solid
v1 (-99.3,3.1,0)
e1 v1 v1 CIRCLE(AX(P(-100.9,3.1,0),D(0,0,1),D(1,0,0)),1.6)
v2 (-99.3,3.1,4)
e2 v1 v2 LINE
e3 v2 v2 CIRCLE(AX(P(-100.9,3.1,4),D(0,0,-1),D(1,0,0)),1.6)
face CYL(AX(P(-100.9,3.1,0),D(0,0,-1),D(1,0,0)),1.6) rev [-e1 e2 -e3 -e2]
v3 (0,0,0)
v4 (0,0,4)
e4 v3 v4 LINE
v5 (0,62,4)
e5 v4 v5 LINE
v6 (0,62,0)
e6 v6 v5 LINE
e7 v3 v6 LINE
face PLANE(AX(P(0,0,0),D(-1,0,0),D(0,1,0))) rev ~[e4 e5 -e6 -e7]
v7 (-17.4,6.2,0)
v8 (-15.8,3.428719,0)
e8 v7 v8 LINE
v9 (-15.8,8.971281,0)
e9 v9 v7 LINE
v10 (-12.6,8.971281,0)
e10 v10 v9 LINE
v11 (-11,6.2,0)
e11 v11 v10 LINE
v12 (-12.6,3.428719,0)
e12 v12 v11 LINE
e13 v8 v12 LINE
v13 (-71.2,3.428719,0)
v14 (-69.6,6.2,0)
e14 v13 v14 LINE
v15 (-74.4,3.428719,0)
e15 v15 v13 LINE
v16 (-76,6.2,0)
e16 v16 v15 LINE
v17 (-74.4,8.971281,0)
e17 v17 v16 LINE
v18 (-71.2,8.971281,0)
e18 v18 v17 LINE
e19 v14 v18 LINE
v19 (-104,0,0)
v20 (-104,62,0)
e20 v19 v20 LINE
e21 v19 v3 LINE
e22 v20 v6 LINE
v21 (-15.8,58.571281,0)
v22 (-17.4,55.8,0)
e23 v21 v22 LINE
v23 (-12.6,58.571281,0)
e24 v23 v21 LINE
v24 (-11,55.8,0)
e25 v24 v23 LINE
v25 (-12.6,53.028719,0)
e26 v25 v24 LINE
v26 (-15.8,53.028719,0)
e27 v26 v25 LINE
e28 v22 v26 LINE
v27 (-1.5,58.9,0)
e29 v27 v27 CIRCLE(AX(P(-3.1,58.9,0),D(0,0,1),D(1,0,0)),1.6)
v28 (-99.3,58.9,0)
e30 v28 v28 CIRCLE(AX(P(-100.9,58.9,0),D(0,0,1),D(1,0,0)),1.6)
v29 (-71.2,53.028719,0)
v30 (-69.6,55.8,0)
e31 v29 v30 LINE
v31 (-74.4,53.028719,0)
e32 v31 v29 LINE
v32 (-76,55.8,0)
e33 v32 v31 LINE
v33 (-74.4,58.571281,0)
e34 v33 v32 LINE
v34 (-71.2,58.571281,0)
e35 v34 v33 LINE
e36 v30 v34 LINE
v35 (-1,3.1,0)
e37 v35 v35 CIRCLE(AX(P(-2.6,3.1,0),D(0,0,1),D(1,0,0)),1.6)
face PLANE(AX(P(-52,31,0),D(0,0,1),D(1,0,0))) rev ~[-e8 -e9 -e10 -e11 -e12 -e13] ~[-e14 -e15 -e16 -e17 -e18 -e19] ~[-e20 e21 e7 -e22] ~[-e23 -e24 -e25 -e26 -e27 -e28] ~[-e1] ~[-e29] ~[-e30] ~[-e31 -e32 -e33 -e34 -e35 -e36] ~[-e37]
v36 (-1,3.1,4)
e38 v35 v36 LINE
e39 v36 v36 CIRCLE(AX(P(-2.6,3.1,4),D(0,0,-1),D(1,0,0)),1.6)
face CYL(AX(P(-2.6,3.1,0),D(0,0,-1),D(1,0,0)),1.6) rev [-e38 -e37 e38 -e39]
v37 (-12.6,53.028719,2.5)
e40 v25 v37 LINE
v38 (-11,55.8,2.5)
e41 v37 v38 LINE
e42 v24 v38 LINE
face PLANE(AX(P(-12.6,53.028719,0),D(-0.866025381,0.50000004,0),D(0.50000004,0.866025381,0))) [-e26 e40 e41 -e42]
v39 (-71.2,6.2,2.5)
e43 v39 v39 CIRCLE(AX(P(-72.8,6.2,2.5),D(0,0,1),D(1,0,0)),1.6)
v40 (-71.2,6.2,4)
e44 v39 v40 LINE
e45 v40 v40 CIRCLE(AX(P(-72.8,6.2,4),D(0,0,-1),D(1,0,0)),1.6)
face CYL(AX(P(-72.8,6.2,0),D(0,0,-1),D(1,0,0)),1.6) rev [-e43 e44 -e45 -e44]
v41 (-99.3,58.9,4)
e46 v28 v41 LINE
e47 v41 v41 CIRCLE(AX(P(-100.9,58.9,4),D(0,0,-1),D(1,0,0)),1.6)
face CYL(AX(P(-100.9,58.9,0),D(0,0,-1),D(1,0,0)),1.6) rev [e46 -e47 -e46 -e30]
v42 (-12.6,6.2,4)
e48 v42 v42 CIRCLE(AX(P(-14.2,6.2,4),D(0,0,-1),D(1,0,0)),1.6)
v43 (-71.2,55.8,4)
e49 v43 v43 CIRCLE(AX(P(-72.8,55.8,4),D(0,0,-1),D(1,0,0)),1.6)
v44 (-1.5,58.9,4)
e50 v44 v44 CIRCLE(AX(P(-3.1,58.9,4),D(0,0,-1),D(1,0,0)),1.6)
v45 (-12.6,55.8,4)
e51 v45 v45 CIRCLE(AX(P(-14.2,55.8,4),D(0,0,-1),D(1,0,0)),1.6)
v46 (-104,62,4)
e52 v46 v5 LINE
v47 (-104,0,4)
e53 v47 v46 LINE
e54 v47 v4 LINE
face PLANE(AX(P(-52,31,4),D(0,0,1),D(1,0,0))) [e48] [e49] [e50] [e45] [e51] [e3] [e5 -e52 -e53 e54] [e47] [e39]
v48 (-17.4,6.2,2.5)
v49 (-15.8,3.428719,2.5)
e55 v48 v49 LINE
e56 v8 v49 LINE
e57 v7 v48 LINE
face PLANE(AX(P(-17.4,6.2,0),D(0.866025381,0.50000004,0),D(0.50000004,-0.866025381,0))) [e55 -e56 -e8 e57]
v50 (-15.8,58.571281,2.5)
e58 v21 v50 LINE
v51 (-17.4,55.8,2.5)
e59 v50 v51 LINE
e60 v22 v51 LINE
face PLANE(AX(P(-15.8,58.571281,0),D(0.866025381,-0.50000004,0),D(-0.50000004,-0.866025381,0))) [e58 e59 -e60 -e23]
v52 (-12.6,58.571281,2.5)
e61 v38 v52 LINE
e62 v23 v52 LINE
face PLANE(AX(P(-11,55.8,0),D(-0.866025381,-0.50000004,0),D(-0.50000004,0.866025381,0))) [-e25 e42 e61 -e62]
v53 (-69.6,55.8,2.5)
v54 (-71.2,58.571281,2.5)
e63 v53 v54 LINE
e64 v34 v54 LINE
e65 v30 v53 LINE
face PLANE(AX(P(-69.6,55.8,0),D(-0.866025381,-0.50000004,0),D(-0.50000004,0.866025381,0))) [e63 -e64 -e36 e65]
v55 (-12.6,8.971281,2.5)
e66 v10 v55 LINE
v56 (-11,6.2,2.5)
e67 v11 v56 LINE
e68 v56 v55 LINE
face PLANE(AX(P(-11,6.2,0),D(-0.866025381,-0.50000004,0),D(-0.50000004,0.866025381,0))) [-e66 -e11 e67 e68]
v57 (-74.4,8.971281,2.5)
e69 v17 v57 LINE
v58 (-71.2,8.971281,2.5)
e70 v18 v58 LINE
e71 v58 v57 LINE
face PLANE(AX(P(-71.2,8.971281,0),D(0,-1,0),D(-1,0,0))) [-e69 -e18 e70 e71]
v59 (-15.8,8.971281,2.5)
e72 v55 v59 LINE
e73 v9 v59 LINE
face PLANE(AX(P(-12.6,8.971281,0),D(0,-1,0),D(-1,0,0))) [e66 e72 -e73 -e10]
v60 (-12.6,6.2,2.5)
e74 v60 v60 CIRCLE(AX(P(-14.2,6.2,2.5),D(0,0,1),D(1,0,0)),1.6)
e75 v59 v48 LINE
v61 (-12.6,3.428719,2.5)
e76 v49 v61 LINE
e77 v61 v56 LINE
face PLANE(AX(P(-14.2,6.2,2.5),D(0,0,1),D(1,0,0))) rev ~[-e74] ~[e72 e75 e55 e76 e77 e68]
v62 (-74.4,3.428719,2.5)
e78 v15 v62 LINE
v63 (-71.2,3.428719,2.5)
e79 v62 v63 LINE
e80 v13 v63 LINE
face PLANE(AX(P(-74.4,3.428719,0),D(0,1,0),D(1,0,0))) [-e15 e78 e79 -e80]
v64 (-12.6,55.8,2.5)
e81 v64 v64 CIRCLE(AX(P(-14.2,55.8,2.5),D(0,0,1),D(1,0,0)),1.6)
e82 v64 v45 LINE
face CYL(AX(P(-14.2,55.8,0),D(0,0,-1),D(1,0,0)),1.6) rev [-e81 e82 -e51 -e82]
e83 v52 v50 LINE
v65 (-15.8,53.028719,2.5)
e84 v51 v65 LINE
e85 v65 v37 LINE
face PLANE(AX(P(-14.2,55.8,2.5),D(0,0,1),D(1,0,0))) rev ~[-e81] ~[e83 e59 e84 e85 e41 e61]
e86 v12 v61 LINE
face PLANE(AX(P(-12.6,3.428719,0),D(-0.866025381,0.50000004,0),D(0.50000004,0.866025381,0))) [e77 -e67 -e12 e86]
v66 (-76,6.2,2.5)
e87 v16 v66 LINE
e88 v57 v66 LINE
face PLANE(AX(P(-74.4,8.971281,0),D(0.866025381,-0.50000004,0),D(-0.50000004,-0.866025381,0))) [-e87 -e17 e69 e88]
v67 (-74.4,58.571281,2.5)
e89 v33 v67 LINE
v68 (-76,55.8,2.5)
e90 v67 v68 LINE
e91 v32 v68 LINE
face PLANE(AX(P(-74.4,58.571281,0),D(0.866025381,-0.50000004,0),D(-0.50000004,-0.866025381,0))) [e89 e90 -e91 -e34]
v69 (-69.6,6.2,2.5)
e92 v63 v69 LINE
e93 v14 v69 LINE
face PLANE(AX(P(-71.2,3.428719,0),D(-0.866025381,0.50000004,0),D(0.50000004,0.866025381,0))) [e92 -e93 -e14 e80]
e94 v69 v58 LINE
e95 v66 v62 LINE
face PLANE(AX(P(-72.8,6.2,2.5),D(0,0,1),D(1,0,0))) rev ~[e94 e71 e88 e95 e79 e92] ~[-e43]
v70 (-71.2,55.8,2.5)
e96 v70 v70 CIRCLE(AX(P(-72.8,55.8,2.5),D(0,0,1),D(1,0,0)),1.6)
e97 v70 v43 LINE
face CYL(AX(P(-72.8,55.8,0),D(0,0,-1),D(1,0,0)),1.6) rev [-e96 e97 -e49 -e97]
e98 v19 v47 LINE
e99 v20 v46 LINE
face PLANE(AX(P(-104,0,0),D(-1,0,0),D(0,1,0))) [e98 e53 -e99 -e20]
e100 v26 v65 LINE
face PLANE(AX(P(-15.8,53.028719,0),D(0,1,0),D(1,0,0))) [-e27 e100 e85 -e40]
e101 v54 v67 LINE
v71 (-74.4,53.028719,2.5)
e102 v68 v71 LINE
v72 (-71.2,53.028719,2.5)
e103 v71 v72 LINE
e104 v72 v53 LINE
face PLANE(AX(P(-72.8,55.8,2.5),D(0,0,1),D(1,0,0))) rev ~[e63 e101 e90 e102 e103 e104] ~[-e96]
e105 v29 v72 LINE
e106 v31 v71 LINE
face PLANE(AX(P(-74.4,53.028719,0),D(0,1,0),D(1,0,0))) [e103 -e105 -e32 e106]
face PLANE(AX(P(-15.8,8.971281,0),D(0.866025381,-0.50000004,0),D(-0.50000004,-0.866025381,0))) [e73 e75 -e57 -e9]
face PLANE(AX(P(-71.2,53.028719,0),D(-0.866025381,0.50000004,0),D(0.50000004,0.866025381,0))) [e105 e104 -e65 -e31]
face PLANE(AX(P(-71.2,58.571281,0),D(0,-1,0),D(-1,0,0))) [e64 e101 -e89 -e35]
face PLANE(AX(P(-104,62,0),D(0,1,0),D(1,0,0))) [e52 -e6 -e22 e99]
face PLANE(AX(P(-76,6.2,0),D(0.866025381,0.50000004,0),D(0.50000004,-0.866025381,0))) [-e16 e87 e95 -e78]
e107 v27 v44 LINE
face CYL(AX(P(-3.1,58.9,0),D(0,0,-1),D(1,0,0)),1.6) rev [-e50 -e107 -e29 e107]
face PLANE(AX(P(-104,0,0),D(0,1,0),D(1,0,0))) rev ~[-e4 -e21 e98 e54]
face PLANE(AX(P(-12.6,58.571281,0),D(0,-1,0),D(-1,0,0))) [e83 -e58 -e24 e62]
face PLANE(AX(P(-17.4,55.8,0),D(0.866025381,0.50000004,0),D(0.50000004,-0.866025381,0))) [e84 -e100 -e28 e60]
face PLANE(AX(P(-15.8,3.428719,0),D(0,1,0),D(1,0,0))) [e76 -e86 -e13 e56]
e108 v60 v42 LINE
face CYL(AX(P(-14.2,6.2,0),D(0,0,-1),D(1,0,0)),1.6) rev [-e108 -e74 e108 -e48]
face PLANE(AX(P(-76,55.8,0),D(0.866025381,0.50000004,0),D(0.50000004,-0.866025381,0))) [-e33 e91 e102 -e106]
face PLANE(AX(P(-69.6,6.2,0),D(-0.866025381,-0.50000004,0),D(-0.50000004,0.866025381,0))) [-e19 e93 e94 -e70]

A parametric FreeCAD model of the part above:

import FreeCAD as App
import Part
import Sketcher
from FreeCAD import Vector
Q = App.Units.Quantity


def add_polygon(sketch, points):
    """Adds a closed chain of lines whose ends are joined by coincident constraints."""
    first, n = sketch.GeometryCount, len(points)
    for a, b in zip(points, points[1:] + points[:1]):
        sketch.addGeometry(Part.LineSegment(App.Vector(*a, 0), App.Vector(*b, 0)), False)
    for i in range(n):
        sketch.addConstraint(Sketcher.Constraint("Coincident", first + i, 2, first + (i + 1) % n, 1))

doc = App.newDocument("Part")
body = doc.addObject("PartDesign::Body", "Body")

# Sketch on XY plane
sketch1 = body.newObject("Sketcher::SketchObject", "Sketch")
sketch1.AttachmentSupport = (doc.getObject("XY_Plane"), [""])
sketch1.MapMode = "FlatFace"
add_polygon(sketch1, [(3.2, 0), (1.6, 2.8), (-1.6, 2.8), (-3.2, 0), (-1.6, -2.8), (1.6, -2.8)])  # lines 0-5
sketch1.addGeometry(Part.Circle(Vector(0, 0, 0), Vector(0, 0, 1), 1.6), False)  # 6
sketch1.addConstraint([
    Sketcher.Constraint("Horizontal", 1),
    Sketcher.Constraint("Horizontal", 4),
    Sketcher.Constraint("Coincident", 6, 3, -1, 1),
    Sketcher.Constraint("Symmetric", 0, 2, 3, 2, -1, 1),
    Sketcher.Constraint("Symmetric", 2, 2, 5, 2, -1, 1),
    Sketcher.Constraint("PointOnObject", 2, 2, -1),
    Sketcher.Constraint("Parallel", 2, 5),
    Sketcher.Constraint("Vertical", 1, 2, 3, 2),
    Sketcher.Constraint("Diameter", 6, Q("3.2 mm")),
    Sketcher.Constraint("Angle", 0, Q("120.000003 deg")),
    Sketcher.Constraint("DistanceX", 1, 2, 1, 1, Q("3.2 mm")),
    Sketcher.Constraint("Distance", 0, Q("3.2 mm")),
])
pad1 = body.newObject("PartDesign::Pad", "Pad")
pad1.Profile = sketch1
pad1.Length = 2.5
body2 = doc.addObject("PartDesign::Body", "Body001")
doc.recompute()

body.Placement = App.Placement(Vector(-72.8, 6.2, 0), App.Rotation(Vector(0, 0, 1), 0))
boolean = body2.newObject("PartDesign::Boolean", "Boolean")
boolean.Type = "Fuse"
boolean.addObjects([body])
body3 = doc.addObject("PartDesign::Body", "Body002")

# Sketch on XY plane
sketch2 = body3.newObject("Sketcher::SketchObject", "Sketch001")
sketch2.AttachmentSupport = (doc.getObject("XY_Plane002"), [""])
sketch2.MapMode = "FlatFace"
add_polygon(sketch2, [(3.2, 0), (1.6, 2.8), (-1.6, 2.8), (-3.2, 0), (-1.6, -2.8), (1.6, -2.8)])  # lines 0-5
sketch2.addGeometry(Part.Circle(Vector(0, 0, 0), Vector(0, 0, 1), 1.6), False)  # 6
sketch2.addConstraint([
    Sketcher.Constraint("Horizontal", 1),
    Sketcher.Constraint("Horizontal", 4),
    Sketcher.Constraint("Coincident", 6, 3, -1, 1),
    Sketcher.Constraint("Symmetric", 0, 2, 3, 2, -1, 1),
    Sketcher.Constraint("Symmetric", 2, 2, 5, 2, -1, 1),
    Sketcher.Constraint("PointOnObject", 2, 2, -1),
    Sketcher.Constraint("Parallel", 2, 5),
    Sketcher.Constraint("Vertical", 1, 2, 3, 2),
    Sketcher.Constraint("Diameter", 6, Q("3.2 mm")),
    Sketcher.Constraint("Angle", 0, Q("120.000003 deg")),
    Sketcher.Constraint("DistanceX", 1, 2, 1, 1, Q("3.2 mm")),
    Sketcher.Constraint("Distance", 0, Q("3.2 mm")),
])
pad2 = body3.newObject("PartDesign::Pad", "Pad001")
pad2.Profile = sketch2
pad2.Length = 2.5
body4 = doc.addObject("PartDesign::Body", "Body003")
doc.recompute()

body3.Placement = App.Placement(Vector(-72.8, 55.8, 0), App.Rotation(Vector(0, 0, 1), 0))
boolean2 = body4.newObject("PartDesign::Boolean", "Boolean001")
boolean2.Type = "Fuse"
boolean2.addObjects([body3])
body5 = doc.addObject("PartDesign::Body", "Body004")

# Sketch on XY plane
sketch3 = body5.newObject("Sketcher::SketchObject", "Sketch002")
sketch3.AttachmentSupport = (doc.getObject("XY_Plane004"), [""])
sketch3.MapMode = "FlatFace"
add_polygon(sketch3, [(3.2, 0), (1.6, 2.8), (-1.6, 2.8), (-3.2, 0), (-1.6, -2.8), (1.6, -2.8)])  # lines 0-5
sketch3.addGeometry(Part.Circle(Vector(0, 0, 0), Vector(0, 0, 1), 1.6), False)  # 6
sketch3.addConstraint([
    Sketcher.Constraint("Horizontal", 1),
    Sketcher.Constraint("Horizontal", 4),
    Sketcher.Constraint("Coincident", 6, 3, -1, 1),
    Sketcher.Constraint("Symmetric", 0, 2, 3, 2, -1, 1),
    Sketcher.Constraint("Symmetric", 2, 2, 5, 2, -1, 1),
    Sketcher.Constraint("PointOnObject", 2, 2, -1),
    Sketcher.Constraint("Parallel", 2, 5),
    Sketcher.Constraint("Vertical", 1, 2, 3, 2),
    Sketcher.Constraint("Diameter", 6, Q("3.2 mm")),
    Sketcher.Constraint("Angle", 0, Q("120.000003 deg")),
    Sketcher.Constraint("DistanceX", 1, 2, 1, 1, Q("3.2 mm")),
    Sketcher.Constraint("Distance", 0, Q("3.2 mm")),
])
pad3 = body5.newObject("PartDesign::Pad", "Pad002")
pad3.Profile = sketch3
pad3.Length = 2.5
body6 = doc.addObject("PartDesign::Body", "Body005")
doc.recompute()

body5.Placement = App.Placement(Vector(-14.2, 55.8, 0), App.Rotation(Vector(0, 0, 1), 0))
boolean3 = body6.newObject("PartDesign::Boolean", "Boolean002")
boolean3.Type = "Fuse"
boolean3.addObjects([body5])
body7 = doc.addObject("PartDesign::Body", "Body006")

# Sketch on XY plane
sketch4 = body7.newObject("Sketcher::SketchObject", "Sketch003")
sketch4.AttachmentSupport = (doc.getObject("XY_Plane006"), [""])
sketch4.MapMode = "FlatFace"
add_polygon(sketch4, [(3.2, 0), (1.6, 2.8), (-1.6, 2.8), (-3.2, 0), (-1.6, -2.8), (1.6, -2.8)])  # lines 0-5
sketch4.addGeometry(Part.Circle(Vector(0, 0, 0), Vector(0, 0, 1), 1.6), False)  # 6
sketch4.addConstraint([
    Sketcher.Constraint("Horizontal", 1),
    Sketcher.Constraint("Horizontal", 4),
    Sketcher.Constraint("Coincident", 6, 3, -1, 1),
    Sketcher.Constraint("Symmetric", 0, 2, 3, 2, -1, 1),
    Sketcher.Constraint("Symmetric", 2, 2, 5, 2, -1, 1),
    Sketcher.Constraint("PointOnObject", 2, 2, -1),
    Sketcher.Constraint("Parallel", 2, 5),
    Sketcher.Constraint("Vertical", 1, 2, 3, 2),
    Sketcher.Constraint("Diameter", 6, Q("3.2 mm")),
    Sketcher.Constraint("Angle", 0, Q("120.000003 deg")),
    Sketcher.Constraint("DistanceX", 1, 2, 1, 1, Q("3.2 mm")),
    Sketcher.Constraint("Distance", 0, Q("3.2 mm")),
])
pad4 = body7.newObject("PartDesign::Pad", "Pad003")
pad4.Profile = sketch4
pad4.Length = 2.5
body8 = doc.addObject("PartDesign::Body", "Body007")
doc.recompute()

body7.Placement = App.Placement(Vector(-14.2, 6.2, 0), App.Rotation(Vector(0, 0, 1), 0))
boolean4 = body8.newObject("PartDesign::Boolean", "Boolean003")
boolean4.Type = "Fuse"
boolean4.addObjects([body7])
body9 = doc.addObject("PartDesign::Body", "Body008")
body9.AllowCompound = True

# Sketch on XY plane
sketch5 = body9.newObject("Sketcher::SketchObject", "Sketch004")
sketch5.AttachmentSupport = (doc.getObject("XY_Plane008"), [""])
sketch5.MapMode = "FlatFace"
sketch5.addGeometry([
    Part.Circle(Vector(-72.8, 55.8, 0), Vector(0, 0, 1), 1.6),
    Part.Circle(Vector(-14.2, 55.8, 0), Vector(0, 0, 1), 1.6),
    Part.Circle(Vector(-14.2, 6.2, 0), Vector(0, 0, 1), 1.6),
    Part.Circle(Vector(-72.8, 6.2, 0), Vector(0, 0, 1), 1.6),
], False)
sketch5.addConstraint([
    Sketcher.Constraint("Equal", 0, 1),
    Sketcher.Constraint("Equal", 1, 2),
    Sketcher.Constraint("Equal", 2, 3),
    Sketcher.Constraint("Horizontal", 0, 3, 1, 3),
    Sketcher.Constraint("Horizontal", 2, 3, 3, 3),
    Sketcher.Constraint("Vertical", 1, 3, 2, 3),
    Sketcher.Constraint("Vertical", 0, 3, 3, 3),
    Sketcher.Constraint("Diameter", 0, Q("3.2 mm")),
    Sketcher.Constraint("DistanceX", 0, 3, -1, 1, Q("72.8 mm")),
    Sketcher.Constraint("DistanceY", -1, 1, 0, 3, Q("55.8 mm")),
    Sketcher.Constraint("DistanceX", 1, 3, -1, 1, Q("14.2 mm")),
    Sketcher.Constraint("DistanceY", -1, 1, 2, 3, Q("6.2 mm")),
])
pad5 = body9.newObject("PartDesign::Pad", "Pad004")
pad5.Profile = sketch5
pad5.Length = 10
body10 = doc.addObject("PartDesign::Body", "Body009")

# Sketch on XY plane
sketch6 = body10.newObject("Sketcher::SketchObject", "Sketch005")
sketch6.AttachmentSupport = (doc.getObject("XY_Plane009"), [""])
sketch6.MapMode = "FlatFace"
sketch6.addGeometry(Part.Circle(Vector(-3.1, 58.9, 0), Vector(0, 0, 1), 1.6), False)
sketch6.addConstraint([
    Sketcher.Constraint("Diameter", 0, Q("3.2 mm")),
    Sketcher.Constraint("DistanceX", 0, 3, -1, 1, Q("3.1 mm")),
    Sketcher.Constraint("DistanceY", -1, 1, 0, 3, Q("58.9 mm")),
])
pad6 = body10.newObject("PartDesign::Pad", "Pad005")
pad6.Profile = sketch6
pad6.Length = 10
body11 = doc.addObject("PartDesign::Body", "Body010")

# Sketch on XY plane
sketch7 = body11.newObject("Sketcher::SketchObject", "Sketch006")
sketch7.AttachmentSupport = (doc.getObject("XY_Plane010"), [""])
sketch7.MapMode = "FlatFace"
sketch7.addGeometry(Part.Circle(Vector(-100.9, 58.9, 0), Vector(0, 0, 1), 1.6), False)
sketch7.addConstraint([
    Sketcher.Constraint("Diameter", 0, Q("3.2 mm")),
    Sketcher.Constraint("DistanceX", 0, 3, -1, 1, Q("100.9 mm")),
    Sketcher.Constraint("DistanceY", -1, 1, 0, 3, Q("58.9 mm")),
])
pad7 = body11.newObject("PartDesign::Pad", "Pad006")
pad7.Profile = sketch7
pad7.Length = 10
body12 = doc.addObject("PartDesign::Body", "Body011")

# Sketch on XY plane
sketch8 = body12.newObject("Sketcher::SketchObject", "Sketch007")
sketch8.AttachmentSupport = (doc.getObject("XY_Plane011"), [""])
sketch8.MapMode = "FlatFace"
sketch8.addGeometry(Part.Circle(Vector(-100.9, 3.1, 0), Vector(0, 0, 1), 1.6), False)
sketch8.addConstraint([
    Sketcher.Constraint("Diameter", 0, Q("3.2 mm")),
    Sketcher.Constraint("DistanceX", 0, 3, -1, 1, Q("100.9 mm")),
    Sketcher.Constraint("DistanceY", -1, 1, 0, 3, Q("3.1 mm")),
])
pad8 = body12.newObject("PartDesign::Pad", "Pad007")
pad8.Profile = sketch8
pad8.Length = 10
body13 = doc.addObject("PartDesign::Body", "Body012")

# Sketch on XY plane
sketch9 = body13.newObject("Sketcher::SketchObject", "Sketch008")
sketch9.AttachmentSupport = (doc.getObject("XY_Plane012"), [""])
sketch9.MapMode = "FlatFace"
sketch9.addGeometry(Part.Circle(Vector(-2.6, 3.1, 0), Vector(0, 0, 1), 1.6), False)
sketch9.addConstraint([
    Sketcher.Constraint("Diameter", 0, Q("3.2 mm")),
    Sketcher.Constraint("DistanceX", 0, 3, -1, 1, Q("2.6 mm")),
    Sketcher.Constraint("DistanceY", -1, 1, 0, 3, Q("3.1 mm")),
])
pad9 = body13.newObject("PartDesign::Pad", "Pad008")
pad9.Profile = sketch9
pad9.Length = 10
body14 = doc.addObject("PartDesign::Body", "Body013")

# Sketch on XY plane
sketch10 = body14.newObject("Sketcher::SketchObject", "Sketch009")
sketch10.AttachmentSupport = (doc.getObject("XY_Plane013"), [""])
sketch10.MapMode = "FlatFace"
add_polygon(sketch10, [(-104, 62), (-104, 0), (0, 0), (0, 62)])  # lines 0-3
sketch10.addConstraint([
    Sketcher.Constraint("Vertical", 0),
    Sketcher.Constraint("Horizontal", 1),
    Sketcher.Constraint("Vertical", 2),
    Sketcher.Constraint("Horizontal", 3),
    Sketcher.Constraint("Coincident", 1, 2, -1, 1),
    Sketcher.Constraint("DistanceX", 1, 1, 1, 2, Q("104 mm")),
    Sketcher.Constraint("DistanceY", 0, 2, 0, 1, Q("62 mm")),
])
pad10 = body14.newObject("PartDesign::Pad", "Pad009")
pad10.Profile = sketch10
pad10.Length = 4
doc.recompute()

boolean5 = body14.newObject("PartDesign::Boolean", "Boolean004")
boolean5.Type = "Cut"
boolean5.addObjects([body13])
doc.recompute()

boolean6 = body14.newObject("PartDesign::Boolean", "Boolean005")
boolean6.Type = "Cut"
boolean6.addObjects([body12])
doc.recompute()

boolean7 = body14.newObject("PartDesign::Boolean", "Boolean006")
boolean7.Type = "Cut"
boolean7.addObjects([body11])
doc.recompute()

boolean8 = body14.newObject("PartDesign::Boolean", "Boolean007")
boolean8.Type = "Cut"
boolean8.addObjects([body10])
doc.recompute()

boolean9 = body14.newObject("PartDesign::Boolean", "Boolean008")
boolean9.Type = "Cut"
boolean9.addObjects([body9])
doc.recompute()

boolean10 = body14.newObject("PartDesign::Boolean", "Boolean009")
boolean10.Type = "Cut"
boolean10.addObjects([body8])
doc.recompute()

boolean11 = body14.newObject("PartDesign::Boolean", "Boolean010")
boolean11.Type = "Cut"
boolean11.addObjects([body6])
doc.recompute()

boolean12 = body14.newObject("PartDesign::Boolean", "Boolean011")
boolean12.Type = "Cut"
boolean12.addObjects([body4])
doc.recompute()

boolean13 = body14.newObject("PartDesign::Boolean", "Boolean012")
boolean13.Type = "Cut"
boolean13.addObjects([body2])

doc.recompute()
